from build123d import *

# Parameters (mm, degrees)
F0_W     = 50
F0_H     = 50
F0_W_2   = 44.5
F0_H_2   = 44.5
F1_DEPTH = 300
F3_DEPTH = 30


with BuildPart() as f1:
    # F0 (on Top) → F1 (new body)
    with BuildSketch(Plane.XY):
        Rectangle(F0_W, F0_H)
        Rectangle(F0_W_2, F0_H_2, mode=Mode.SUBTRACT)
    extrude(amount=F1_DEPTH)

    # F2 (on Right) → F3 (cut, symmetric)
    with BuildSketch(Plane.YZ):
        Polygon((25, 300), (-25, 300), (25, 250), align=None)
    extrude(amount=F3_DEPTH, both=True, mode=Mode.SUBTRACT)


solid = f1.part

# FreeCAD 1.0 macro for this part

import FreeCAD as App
import Part
import Sketcher

doc = App.newDocument("Part")
body = doc.addObject("PartDesign::Body", "Body")

sketch1 = body.newObject("Sketcher::SketchObject", "Sketch")
sketch1.AttachmentSupport = (doc.getObject("XY_Plane"), [""])
sketch1.MapMode = "FlatFace"
sketch1.addGeometry([
    Part.LineSegment(App.Vector(-25, 25, 0), App.Vector(-25, -25, 0)),
    Part.LineSegment(App.Vector(-25, -25, 0), App.Vector(25, -25, 0)),
    Part.LineSegment(App.Vector(25, -25, 0), App.Vector(25, 25, 0)),
    Part.LineSegment(App.Vector(25, 25, 0), App.Vector(-25, 25, 0)),
    Part.LineSegment(App.Vector(22, -22, 0), App.Vector(-22, -22, 0)),
    Part.LineSegment(App.Vector(-22, -22, 0), App.Vector(-22, 22, 0)),
    Part.LineSegment(App.Vector(-22, 22, 0), App.Vector(22, 22, 0)),
    Part.LineSegment(App.Vector(22, 22, 0), App.Vector(22, -22, 0)),
], False)
sketch1.addConstraint([
    Sketcher.Constraint("Coincident", 0, 2, 1, 1),
    Sketcher.Constraint("Coincident", 1, 2, 2, 1),
    Sketcher.Constraint("Coincident", 2, 2, 3, 1),
    Sketcher.Constraint("Coincident", 3, 2, 0, 1),
    Sketcher.Constraint("Coincident", 4, 2, 5, 1),
    Sketcher.Constraint("Coincident", 5, 2, 6, 1),
    Sketcher.Constraint("Coincident", 6, 2, 7, 1),
    Sketcher.Constraint("Coincident", 7, 2, 4, 1),
    Sketcher.Constraint("Vertical", 0),
    Sketcher.Constraint("Horizontal", 1),
    Sketcher.Constraint("Vertical", 2),
    Sketcher.Constraint("Horizontal", 3),
    Sketcher.Constraint("Horizontal", 4),
    Sketcher.Constraint("Vertical", 5),
    Sketcher.Constraint("Horizontal", 6),
    Sketcher.Constraint("Vertical", 7),
    Sketcher.Constraint("Symmetric", 0, 2, 2, 2, -1, 1),
    Sketcher.Constraint("Symmetric", 4, 2, 6, 2, -1, 1),
    Sketcher.Constraint("Equal", 3, 0),
    Sketcher.Constraint("Equal", 6, 5),
    Sketcher.Constraint("DistanceX", 1, 1, 1, 2, 50.0),
    Sketcher.Constraint("DistanceX", 4, 2, 4, 1, 44.5),
])
pad1 = body.newObject("PartDesign::Pad", "Pad")
pad1.Profile = sketch1
pad1.Length = 300

sketch2 = body.newObject("Sketcher::SketchObject", "Sketch001")
sketch2.AttachmentSupport = (doc.getObject("YZ_Plane"), [""])
sketch2.MapMode = "FlatFace"
sketch2.addGeometry([
    Part.LineSegment(App.Vector(25, 300, 0), App.Vector(-25, 300, 0)),
    Part.LineSegment(App.Vector(-25, 300, 0), App.Vector(25, 250, 0)),
    Part.LineSegment(App.Vector(25, 250, 0), App.Vector(25, 300, 0)),
], False)
sketch2.addConstraint([
    Sketcher.Constraint("Coincident", 0, 2, 1, 1),
    Sketcher.Constraint("Coincident", 1, 2, 2, 1),
    Sketcher.Constraint("Coincident", 2, 2, 0, 1),
    Sketcher.Constraint("Horizontal", 0),
    Sketcher.Constraint("Vertical", 2),
    Sketcher.Constraint("Equal", 0, 2),
    Sketcher.Constraint("DistanceX", 0, 2, 0, 1, 50.0),
    Sketcher.Constraint("DistanceX", 0, 2, -1, 1, 25.0),
    Sketcher.Constraint("DistanceY", -1, 1, 0, 2, 300.0),
])
pocket1 = body.newObject("PartDesign::Pocket", "Pocket")
pocket1.Profile = sketch2
pocket1.Length = 60
pocket1.Midplane = True

doc.recompute()
